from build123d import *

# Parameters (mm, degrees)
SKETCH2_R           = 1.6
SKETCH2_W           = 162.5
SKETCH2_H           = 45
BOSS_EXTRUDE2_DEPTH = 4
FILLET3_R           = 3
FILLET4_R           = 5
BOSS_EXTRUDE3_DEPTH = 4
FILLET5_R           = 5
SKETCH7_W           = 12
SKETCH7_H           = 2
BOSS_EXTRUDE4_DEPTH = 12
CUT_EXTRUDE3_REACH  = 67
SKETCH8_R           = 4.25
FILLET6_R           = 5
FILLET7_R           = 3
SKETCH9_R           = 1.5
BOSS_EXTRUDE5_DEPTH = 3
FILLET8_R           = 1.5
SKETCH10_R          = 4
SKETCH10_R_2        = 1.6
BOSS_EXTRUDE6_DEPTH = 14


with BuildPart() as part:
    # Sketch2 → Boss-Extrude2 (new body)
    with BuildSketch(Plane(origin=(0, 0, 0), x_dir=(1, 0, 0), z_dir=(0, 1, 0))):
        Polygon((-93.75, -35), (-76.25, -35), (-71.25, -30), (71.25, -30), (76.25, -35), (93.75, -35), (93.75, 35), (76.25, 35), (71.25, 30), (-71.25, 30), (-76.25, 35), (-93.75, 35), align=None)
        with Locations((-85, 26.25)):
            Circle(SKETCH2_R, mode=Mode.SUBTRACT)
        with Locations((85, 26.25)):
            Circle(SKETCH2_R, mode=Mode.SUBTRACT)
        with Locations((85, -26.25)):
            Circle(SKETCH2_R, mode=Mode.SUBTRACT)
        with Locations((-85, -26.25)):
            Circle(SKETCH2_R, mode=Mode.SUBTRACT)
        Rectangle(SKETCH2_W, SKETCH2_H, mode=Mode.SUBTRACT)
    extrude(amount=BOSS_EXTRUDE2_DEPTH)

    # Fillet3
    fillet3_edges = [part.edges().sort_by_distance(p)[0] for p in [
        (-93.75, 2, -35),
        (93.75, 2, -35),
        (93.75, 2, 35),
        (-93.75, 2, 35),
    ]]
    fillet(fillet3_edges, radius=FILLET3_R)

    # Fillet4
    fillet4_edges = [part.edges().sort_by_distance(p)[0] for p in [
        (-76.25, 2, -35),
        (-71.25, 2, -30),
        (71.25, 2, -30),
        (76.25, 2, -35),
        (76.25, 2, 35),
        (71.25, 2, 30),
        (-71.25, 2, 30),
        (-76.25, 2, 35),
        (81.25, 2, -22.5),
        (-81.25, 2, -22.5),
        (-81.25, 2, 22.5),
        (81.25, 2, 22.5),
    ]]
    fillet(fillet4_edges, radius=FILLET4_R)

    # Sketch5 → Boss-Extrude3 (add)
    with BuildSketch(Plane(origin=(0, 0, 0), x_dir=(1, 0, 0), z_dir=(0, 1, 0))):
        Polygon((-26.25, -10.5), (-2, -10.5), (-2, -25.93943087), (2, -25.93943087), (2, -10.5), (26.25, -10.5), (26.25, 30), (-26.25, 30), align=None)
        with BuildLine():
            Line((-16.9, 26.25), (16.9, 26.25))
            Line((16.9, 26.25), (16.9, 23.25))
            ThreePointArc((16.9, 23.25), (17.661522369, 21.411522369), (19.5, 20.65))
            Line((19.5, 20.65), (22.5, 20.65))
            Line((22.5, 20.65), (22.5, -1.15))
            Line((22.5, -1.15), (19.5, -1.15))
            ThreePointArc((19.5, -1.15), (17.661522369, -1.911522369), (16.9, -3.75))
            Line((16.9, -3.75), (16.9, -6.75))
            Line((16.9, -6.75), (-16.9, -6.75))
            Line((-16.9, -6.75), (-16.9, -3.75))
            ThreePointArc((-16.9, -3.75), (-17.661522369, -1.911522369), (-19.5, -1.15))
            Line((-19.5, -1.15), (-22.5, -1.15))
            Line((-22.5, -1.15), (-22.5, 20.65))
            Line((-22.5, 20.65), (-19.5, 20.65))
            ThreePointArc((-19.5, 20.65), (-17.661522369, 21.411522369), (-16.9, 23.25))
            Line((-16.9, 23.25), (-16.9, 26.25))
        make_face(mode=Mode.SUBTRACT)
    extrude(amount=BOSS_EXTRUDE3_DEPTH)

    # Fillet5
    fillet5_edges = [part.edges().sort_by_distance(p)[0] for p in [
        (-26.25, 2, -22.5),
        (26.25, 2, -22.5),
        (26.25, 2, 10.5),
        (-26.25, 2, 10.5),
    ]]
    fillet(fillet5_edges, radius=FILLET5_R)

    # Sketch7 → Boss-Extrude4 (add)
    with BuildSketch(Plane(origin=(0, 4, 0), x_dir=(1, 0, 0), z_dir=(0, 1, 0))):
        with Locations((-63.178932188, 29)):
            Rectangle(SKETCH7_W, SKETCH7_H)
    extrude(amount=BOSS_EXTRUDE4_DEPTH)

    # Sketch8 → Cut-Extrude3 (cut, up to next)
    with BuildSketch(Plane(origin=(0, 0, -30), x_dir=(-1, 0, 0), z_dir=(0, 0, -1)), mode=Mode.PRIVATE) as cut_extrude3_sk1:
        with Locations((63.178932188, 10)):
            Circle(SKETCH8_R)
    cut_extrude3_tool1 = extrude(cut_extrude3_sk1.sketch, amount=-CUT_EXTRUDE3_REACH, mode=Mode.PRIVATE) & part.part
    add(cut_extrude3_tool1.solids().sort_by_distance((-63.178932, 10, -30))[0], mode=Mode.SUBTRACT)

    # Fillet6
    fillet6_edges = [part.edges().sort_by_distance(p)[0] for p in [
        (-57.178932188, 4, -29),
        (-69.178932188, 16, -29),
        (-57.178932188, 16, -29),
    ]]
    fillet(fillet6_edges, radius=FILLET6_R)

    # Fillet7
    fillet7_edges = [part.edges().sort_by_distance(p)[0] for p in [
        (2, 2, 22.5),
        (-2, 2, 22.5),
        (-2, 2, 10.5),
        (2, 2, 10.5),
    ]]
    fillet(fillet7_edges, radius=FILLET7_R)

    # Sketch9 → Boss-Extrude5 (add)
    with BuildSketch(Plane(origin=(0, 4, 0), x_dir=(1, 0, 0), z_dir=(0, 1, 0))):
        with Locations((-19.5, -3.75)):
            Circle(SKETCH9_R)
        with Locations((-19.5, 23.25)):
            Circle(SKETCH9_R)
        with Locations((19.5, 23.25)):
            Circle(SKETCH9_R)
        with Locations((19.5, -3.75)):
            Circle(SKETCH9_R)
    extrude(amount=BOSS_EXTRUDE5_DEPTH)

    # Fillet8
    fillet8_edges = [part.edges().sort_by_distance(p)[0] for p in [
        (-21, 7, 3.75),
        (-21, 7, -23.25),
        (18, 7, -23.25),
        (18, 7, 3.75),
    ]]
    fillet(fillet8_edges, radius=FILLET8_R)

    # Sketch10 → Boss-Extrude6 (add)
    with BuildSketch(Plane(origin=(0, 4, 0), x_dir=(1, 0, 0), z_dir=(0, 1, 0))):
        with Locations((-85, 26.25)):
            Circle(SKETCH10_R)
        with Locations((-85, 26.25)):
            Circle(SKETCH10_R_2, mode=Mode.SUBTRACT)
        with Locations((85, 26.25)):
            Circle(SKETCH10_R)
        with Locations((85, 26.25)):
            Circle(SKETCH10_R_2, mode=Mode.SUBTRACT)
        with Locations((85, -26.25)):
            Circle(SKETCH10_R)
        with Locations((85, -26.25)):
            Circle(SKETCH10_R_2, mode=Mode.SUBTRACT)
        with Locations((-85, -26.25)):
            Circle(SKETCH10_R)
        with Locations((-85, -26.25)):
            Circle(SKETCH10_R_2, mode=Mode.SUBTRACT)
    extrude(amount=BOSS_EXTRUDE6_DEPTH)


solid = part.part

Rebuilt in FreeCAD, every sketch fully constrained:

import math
import FreeCAD as App
import Part
import Sketcher
Q = App.Units.Quantity


def edges_at(feature, points):
    """Names of the edges that pass closest to the given points."""
    edges = feature.Shape.Edges
    near = lambda p: min(range(len(edges)), key=lambda i: edges[i].distToShape(Part.Vertex(*p))[0])
    return sorted({f"Edge{near(p) + 1}" for p in points})


def add_polygon(sketch, points):
    """Adds a closed chain of lines whose ends are joined by coincident constraints."""
    first, n = sketch.GeometryCount, len(points)
    for a, b in zip(points, points[1:] + points[:1]):
        sketch.addGeometry(Part.LineSegment(App.Vector(*a, 0), App.Vector(*b, 0)), False)
    for i in range(n):
        sketch.addConstraint(Sketcher.Constraint("Coincident", first + i, 2, first + (i + 1) % n, 1))

doc = App.newDocument("Part")
params = doc.addObject("Spreadsheet::Sheet", "Params")
for row, (alias, value) in enumerate([
    ("sketch1_diameter", "3.2 mm"),
    ("sketch1_height", "70 mm"),
    ("sketch1_height2", "45 mm"),
    ("sketch1_width", "17.5 mm"),
    ("sketch1_width2", "142.5 mm"),
    ("pad1_length", "4 mm"),
    ("fillet_radius", "3 mm"),
    ("fillet2_radius", "5 mm"),
    ("sketch2_radius", "2.6 mm"),
    ("sketch2_width", "4 mm"),
    ("sketch2_width2", "3 mm"),
    ("sketch2_width3", "52.5 mm"),
    ("sketch2_width4", "33.8 mm"),
    ("pad2_length", "4 mm"),
    ("fillet3_radius", "5 mm"),
    ("sketch3_width", "12 mm"),
    ("sketch3_height", "2 mm"),
    ("pad3_length", "12 mm"),
    ("sketch4_diameter", "8.5 mm"),
    ("fillet4_radius", "5 mm"),
    ("fillet5_radius", "3 mm"),
    ("sketch5_diameter", "3 mm"),
    ("pad4_length", "3 mm"),
    ("fillet6_radius", "1.5 mm"),
    ("sketch6_diameter", "8 mm"),
    ("sketch6_diameter2", "3.2 mm"),
    ("pad5_length", "14 mm"),
], start=1):
    params.set(f"A{row}", alias)
    params.set(f"B{row}", "=" + value)
    params.setAlias(f"B{row}", alias)

body = doc.addObject("PartDesign::Body", "Body")

# Sketch on XZ plane
sketch1 = body.newObject("Sketcher::SketchObject", "Sketch")
sketch1.AttachmentSupport = (doc.getObject("XZ_Plane"), [""])
sketch1.MapMode = "FlatFace"
add_polygon(sketch1, [(-93.8, 35), (-76.2, 35), (-71.2, 30), (71.2, 30), (76.2, 35), (93.8, 35), (93.8, -35), (76.2, -35), (71.2, -30), (-71.2, -30), (-76.2, -35), (-93.8, -35)])  # lines 0-11
sketch1.addGeometry(Part.Circle(App.Vector(-85, 26.2, 0), App.Vector(0, 0, 1), 1.6), False)  # 12
sketch1.addGeometry(Part.Circle(App.Vector(85, 26.2, 0), App.Vector(0, 0, 1), 1.6), False)  # 13
sketch1.addGeometry(Part.Circle(App.Vector(-85, -26.2, 0), App.Vector(0, 0, 1), 1.6), False)  # 14
add_polygon(sketch1, [(81.2, 22.5), (-81.2, 22.5), (-81.2, -22.5), (81.2, -22.5)])  # lines 15-18
sketch1.addGeometry(Part.Circle(App.Vector(85, -26.2, 0), App.Vector(0, 0, 1), 1.6), False)  # 19
sketch1.addConstraint([
    Sketcher.Constraint("Horizontal", 0),
    Sketcher.Constraint("Horizontal", 2),
    Sketcher.Constraint("Horizontal", 4),
    Sketcher.Constraint("Vertical", 5),
    Sketcher.Constraint("Horizontal", 6),
    Sketcher.Constraint("Horizontal", 8),
    Sketcher.Constraint("Horizontal", 10),
    Sketcher.Constraint("Vertical", 11),
    Sketcher.Constraint("Horizontal", 15),
    Sketcher.Constraint("Vertical", 16),
    Sketcher.Constraint("Horizontal", 17),
    Sketcher.Constraint("Vertical", 18),
    Sketcher.Constraint("Equal", 12, 13),
    Sketcher.Constraint("Equal", 13, 14),
    Sketcher.Constraint("Equal", 14, 19),
    Sketcher.Constraint("Symmetric", 13, 3, 14, 3, -1, 1),
    Sketcher.Constraint("Symmetric", 12, 3, 19, 3, -1, 1),
    Sketcher.Constraint("Symmetric", 0, 2, 6, 2, -1, 1),
    Sketcher.Constraint("Symmetric", 1, 2, 7, 2, -1, 1),
    Sketcher.Constraint("Symmetric", 3, 2, 9, 2, -1, 1),
    Sketcher.Constraint("Symmetric", 15, 2, 17, 2, -1, 1),
    Sketcher.Constraint("Symmetric", 12, 3, 13, 3, -2),
    Sketcher.Constraint("Symmetric", 0, 2, 3, 2, -2),
    Sketcher.Constraint("Perpendicular", 1, 3),
    Sketcher.Constraint("Perpendicular", 7, 9),
    Sketcher.Constraint("Vertical", 2, 2, 7, 2),
    Sketcher.Constraint("Equal", 0, 4),
    Sketcher.Constraint("Diameter", 12, Q("3.2 mm")),
    Sketcher.Constraint("DistanceY", 5, 2, 5, 1, Q("70 mm")),
    Sketcher.Constraint("DistanceY", 16, 2, 16, 1, Q("45 mm")),
    Sketcher.Constraint("DistanceX", 0, 1, 0, 2, Q("17.5 mm")),
    Sketcher.Constraint("DistanceX", 2, 1, 2, 2, Q("142.5 mm")),
    Sketcher.Constraint("DistanceX", 15, 2, 15, 1, Q("162.5 mm")),
    Sketcher.Constraint("DistanceX", 12, 3, -1, 1, Q("85 mm")),
    Sketcher.Constraint("DistanceY", -1, 1, 1, 2, Q("30 mm")),
    Sketcher.Constraint("DistanceY", 14, 3, 12, 3, Q("52.5 mm")),
])
sketch1.setExpression("Constraints[43]", "Params.sketch1_diameter")
sketch1.setExpression("Constraints[44]", "Params.sketch1_height")
sketch1.setExpression("Constraints[45]", "Params.sketch1_height2")
sketch1.setExpression("Constraints[46]", "Params.sketch1_width")
sketch1.setExpression("Constraints[47]", "Params.sketch1_width2")
pad1 = body.newObject("PartDesign::Pad", "Pad")
pad1.Profile = sketch1
pad1.setExpression("Length", "Params.pad1_length")
pad1.Reversed = True
doc.recompute()

fillet = body.newObject("PartDesign::Fillet", "Fillet")
fillet.Base = (pad1, edges_at(pad1, [
    (-93.75, 2, -35),
    (93.75, 2, -35),
    (93.75, 2, 35),
    (-93.75, 2, 35),
]))
fillet.setExpression("Radius", "Params.fillet_radius")
doc.recompute()

fillet2 = body.newObject("PartDesign::Fillet", "Fillet001")
fillet2.Base = (fillet, edges_at(fillet, [
    (-76.25, 2, -35),
    (-71.25, 2, -30),
    (71.25, 2, -30),
    (76.25, 2, -35),
    (76.25, 2, 35),
    (71.25, 2, 30),
    (-71.25, 2, 30),
    (-76.25, 2, 35),
    (81.25, 2, -22.5),
    (-81.25, 2, -22.5),
    (-81.25, 2, 22.5),
    (81.25, 2, 22.5),
]))
fillet2.setExpression("Radius", "Params.fillet2_radius")

# Sketch on XZ plane
sketch2 = body.newObject("Sketcher::SketchObject", "Sketch001")
sketch2.AttachmentSupport = (doc.getObject("XZ_Plane"), [""])
sketch2.MapMode = "FlatFace"
add_polygon(sketch2, [(-26.2, 10.5), (-2, 10.5), (-2, 25.9), (2, 25.9), (2, 10.5), (26.2, 10.5), (26.2, -30), (-26.2, -30)])  # lines 0-7
sketch2.addGeometry(Part.LineSegment(App.Vector(-16.9, -23.2, 0), App.Vector(-16.9, -26.2, 0)), False)  # 8
sketch2.addGeometry(Part.LineSegment(App.Vector(-16.9, -26.2, 0), App.Vector(16.9, -26.2, 0)), False)  # 9
sketch2.addGeometry(Part.LineSegment(App.Vector(16.9, -26.2, 0), App.Vector(16.9, -23.2, 0)), False)  # 10
sketch2.addGeometry(Part.ArcOfCircle(Part.Circle(App.Vector(19.5, -23.2, 0), App.Vector(0, 0, 1), 2.6), math.radians(90), math.radians(180)), False)  # 11
sketch2.addGeometry(Part.LineSegment(App.Vector(19.5, -20.6, 0), App.Vector(22.5, -20.6, 0)), False)  # 12
sketch2.addGeometry(Part.LineSegment(App.Vector(22.5, -20.6, 0), App.Vector(22.5, 1.1, 0)), False)  # 13
sketch2.addGeometry(Part.LineSegment(App.Vector(22.5, 1.1, 0), App.Vector(19.5, 1.1, 0)), False)  # 14
sketch2.addGeometry(Part.ArcOfCircle(Part.Circle(App.Vector(19.5, 3.8, 0), App.Vector(0, 0, 1), 2.6), math.radians(180), math.radians(270)), False)  # 15
sketch2.addGeometry(Part.LineSegment(App.Vector(16.9, 3.8, 0), App.Vector(16.9, 6.8, 0)), False)  # 16
sketch2.addGeometry(Part.LineSegment(App.Vector(16.9, 6.8, 0), App.Vector(-16.9, 6.8, 0)), False)  # 17
sketch2.addGeometry(Part.LineSegment(App.Vector(-16.9, 6.8, 0), App.Vector(-16.9, 3.8, 0)), False)  # 18
sketch2.addGeometry(Part.ArcOfCircle(Part.Circle(App.Vector(-19.5, 3.8, 0), App.Vector(0, 0, 1), 2.6), math.radians(-90), math.radians(0)), False)  # 19
sketch2.addGeometry(Part.LineSegment(App.Vector(-19.5, 1.1, 0), App.Vector(-22.5, 1.1, 0)), False)  # 20
sketch2.addGeometry(Part.LineSegment(App.Vector(-22.5, 1.1, 0), App.Vector(-22.5, -20.6, 0)), False)  # 21
sketch2.addGeometry(Part.LineSegment(App.Vector(-22.5, -20.6, 0), App.Vector(-19.5, -20.6, 0)), False)  # 22
sketch2.addGeometry(Part.ArcOfCircle(Part.Circle(App.Vector(-19.5, -23.2, 0), App.Vector(0, 0, 1), 2.6), math.radians(0), math.radians(90)), False)  # 23
sketch2.addConstraint([
    Sketcher.Constraint("Coincident", 8, 2, 9, 1),
    Sketcher.Constraint("Coincident", 9, 2, 10, 1),
    Sketcher.Constraint("Tangent", 10, 2, 11, 2),
    Sketcher.Constraint("Tangent", 11, 1, 12, 1),
    Sketcher.Constraint("Coincident", 12, 2, 13, 1),
    Sketcher.Constraint("Coincident", 13, 2, 14, 1),
    Sketcher.Constraint("Tangent", 14, 2, 15, 2),
    Sketcher.Constraint("Tangent", 15, 1, 16, 1),
    Sketcher.Constraint("Coincident", 16, 2, 17, 1),
    Sketcher.Constraint("Coincident", 17, 2, 18, 1),
    Sketcher.Constraint("Tangent", 18, 2, 19, 2),
    Sketcher.Constraint("Tangent", 19, 1, 20, 1),
    Sketcher.Constraint("Coincident", 20, 2, 21, 1),
    Sketcher.Constraint("Coincident", 21, 2, 22, 1),
    Sketcher.Constraint("Tangent", 22, 2, 23, 2),
    Sketcher.Constraint("Tangent", 23, 1, 8, 1),
    Sketcher.Constraint("Horizontal", 0),
    Sketcher.Constraint("Vertical", 1),
    Sketcher.Constraint("Horizontal", 2),
    Sketcher.Constraint("Vertical", 3),
    Sketcher.Constraint("Horizontal", 4),
    Sketcher.Constraint("Vertical", 5),
    Sketcher.Constraint("Horizontal", 6),
    Sketcher.Constraint("Vertical", 7),
    Sketcher.Constraint("Vertical", 8),
    Sketcher.Constraint("Horizontal", 9),
    Sketcher.Constraint("Vertical", 10),
    Sketcher.Constraint("Horizontal", 12),
    Sketcher.Constraint("Vertical", 13),
    Sketcher.Constraint("Horizontal", 14),
    Sketcher.Constraint("Vertical", 16),
    Sketcher.Constraint("Horizontal", 17),
    Sketcher.Constraint("Vertical", 18),
    Sketcher.Constraint("Horizontal", 20),
    Sketcher.Constraint("Vertical", 21),
    Sketcher.Constraint("Horizontal", 22),
    Sketcher.Constraint("Equal", 11, 15),
    Sketcher.Constraint("Equal", 15, 19),
    Sketcher.Constraint("Equal", 19, 23),
    Sketcher.Constraint("Symmetric", 15, 3, 19, 3, -2),
    Sketcher.Constraint("Symmetric", 11, 3, 23, 3, -2),
    Sketcher.Constraint("Symmetric", 0, 2, 3, 2, -2),
    Sketcher.Constraint("Vertical", 11, 3, 15, 3),
    Sketcher.Constraint("Equal", 0, 4),
    Sketcher.Constraint("Equal", 14, 20),
    Sketcher.Constraint("Equal", 22, 8),
    Sketcher.Constraint("Equal", 10, 16),
    Sketcher.Constraint("Radius", 11, Q("2.6 mm")),
    Sketcher.Constraint("DistanceX", 2, 1, 2, 2, Q("4 mm")),
    Sketcher.Constraint("DistanceX", 12, 1, 12, 2, Q("3 mm")),
    Sketcher.Constraint("DistanceX", 6, 2, 6, 1, Q("52.5 mm")),
    Sketcher.Constraint("DistanceX", 9, 1, 9, 2, Q("33.8 mm")),
    Sketcher.Constraint("DistanceY", 5, 2, 5, 1, Q("40.5 mm")),
    Sketcher.Constraint("DistanceY", 13, 1, 13, 2, Q("21.8 mm")),
    Sketcher.Constraint("DistanceY", 5, 2, -1, 1, Q("30 mm")),
    Sketcher.Constraint("DistanceY", 11, 3, -1, 1, Q("23.25 mm")),
    Sketcher.Constraint("DistanceY", 1, 1, 1, 2, Q("15.439431 mm")),
])
sketch2.setExpression("Constraints[55]", "Params.sketch2_radius")
sketch2.setExpression("Constraints[56]", "Params.sketch2_width")
sketch2.setExpression("Constraints[57]", "Params.sketch2_width2")
sketch2.setExpression("Constraints[58]", "Params.sketch2_width3")
sketch2.setExpression("Constraints[59]", "Params.sketch2_width4")
pad2 = body.newObject("PartDesign::Pad", "Pad001")
pad2.Profile = sketch2
pad2.setExpression("Length", "Params.pad2_length")
pad2.Reversed = True
doc.recompute()

fillet3 = body.newObject("PartDesign::Fillet", "Fillet002")
fillet3.Base = (pad2, edges_at(pad2, [
    (-26.25, 2, -22.5),
    (26.25, 2, -22.5),
    (26.25, 2, 10.5),
    (-26.25, 2, 10.5),
]))
fillet3.setExpression("Radius", "Params.fillet3_radius")

# Sketch on XZ plane
sketch3 = body.newObject("Sketcher::SketchObject", "Sketch002")
sketch3.AttachmentSupport = (doc.getObject("XZ_Plane"), [""])
sketch3.MapMode = "FlatFace"
sketch3.AttachmentOffset = App.Placement(App.Vector(0, 0, -4), App.Rotation())
add_polygon(sketch3, [(-69.2, -30), (-69.2, -28), (-57.2, -28), (-57.2, -30)])  # lines 0-3
sketch3.addConstraint([
    Sketcher.Constraint("Vertical", 0),
    Sketcher.Constraint("Horizontal", 1),
    Sketcher.Constraint("Vertical", 2),
    Sketcher.Constraint("Horizontal", 3),
    Sketcher.Constraint("DistanceX", 1, 1, 1, 2, Q("12 mm")),
    Sketcher.Constraint("DistanceY", 0, 1, 0, 2, Q("2 mm")),
    Sketcher.Constraint("DistanceY", 0, 2, -1, 1, Q("28 mm")),
    Sketcher.Constraint("DistanceX", 0, 2, -1, 1, Q("69.178932 mm")),
])
sketch3.setExpression("Constraints[8]", "Params.sketch3_width")
sketch3.setExpression("Constraints[9]", "Params.sketch3_height")
pad3 = body.newObject("PartDesign::Pad", "Pad002")
pad3.Profile = sketch3
pad3.setExpression("Length", "Params.pad3_length")
pad3.Reversed = True

# Sketch on XY plane
sketch4 = body.newObject("Sketcher::SketchObject", "Sketch003")
sketch4.AttachmentSupport = (doc.getObject("XY_Plane"), [""])
sketch4.MapMode = "FlatFace"
sketch4.AttachmentOffset = App.Placement(App.Vector(0, 0, -30), App.Rotation())
sketch4.addGeometry(Part.Circle(App.Vector(-63.2, 10, 0), App.Vector(0, 0, 1), 4.2), False)
sketch4.addConstraint([
    Sketcher.Constraint("Diameter", 0, Q("8.5 mm")),
    Sketcher.Constraint("DistanceY", -1, 1, 0, 3, Q("10 mm")),
    Sketcher.Constraint("DistanceX", 0, 3, -1, 1, Q("63.178932 mm")),
])
sketch4.setExpression("Constraints[0]", "Params.sketch4_diameter")
pocket1 = body.newObject("PartDesign::Pocket", "Pocket")
pocket1.Profile = sketch4
pocket1.Type = "UpToFirst"
pocket1.Reversed = True
doc.recompute()

fillet4 = body.newObject("PartDesign::Fillet", "Fillet003")
fillet4.Base = (pocket1, edges_at(pocket1, [(-57.179, 4, -29), (-69.179, 16, -29), (-57.179, 16, -29)]))
fillet4.setExpression("Radius", "Params.fillet4_radius")
doc.recompute()

fillet5 = body.newObject("PartDesign::Fillet", "Fillet004")
fillet5.Base = (fillet4, edges_at(fillet4, [
    (2, 2, 22.5),
    (-2, 2, 22.5),
    (-2, 2, 10.5),
    (2, 2, 10.5),
]))
fillet5.setExpression("Radius", "Params.fillet5_radius")

# Sketch on XZ plane
sketch5 = body.newObject("Sketcher::SketchObject", "Sketch004")
sketch5.AttachmentSupport = (doc.getObject("XZ_Plane"), [""])
sketch5.MapMode = "FlatFace"
sketch5.AttachmentOffset = App.Placement(App.Vector(0, 0, -4), App.Rotation())
sketch5.addGeometry([
    Part.Circle(App.Vector(-19.5, 3.8, 0), App.Vector(0, 0, 1), 1.5),
    Part.Circle(App.Vector(-19.5, -23.2, 0), App.Vector(0, 0, 1), 1.5),
    Part.Circle(App.Vector(19.5, -23.2, 0), App.Vector(0, 0, 1), 1.5),
    Part.Circle(App.Vector(19.5, 3.8, 0), App.Vector(0, 0, 1), 1.5),
], False)
sketch5.addConstraint([
    Sketcher.Constraint("Equal", 0, 1),
    Sketcher.Constraint("Equal", 1, 2),
    Sketcher.Constraint("Equal", 2, 3),
    Sketcher.Constraint("Symmetric", 1, 3, 2, 3, -2),
    Sketcher.Constraint("Symmetric", 0, 3, 3, 3, -2),
    Sketcher.Constraint("Vertical", 0, 3, 1, 3),
    Sketcher.Constraint("Diameter", 0, Q("3 mm")),
    Sketcher.Constraint("DistanceY", 1, 3, 0, 3, Q("27 mm")),
    Sketcher.Constraint("DistanceX", 1, 3, 2, 3, Q("39 mm")),
    Sketcher.Constraint("DistanceY", -1, 1, 0, 3, Q("3.75 mm")),
])
sketch5.setExpression("Constraints[6]", "Params.sketch5_diameter")
pad4 = body.newObject("PartDesign::Pad", "Pad003")
pad4.Profile = sketch5
pad4.setExpression("Length", "Params.pad4_length")
pad4.Reversed = True
doc.recompute()

fillet6 = body.newObject("PartDesign::Fillet", "Fillet005")
fillet6.Base = (pad4, edges_at(pad4, [
    (-21, 7, 3.75),
    (-21, 7, -23.25),
    (18, 7, -23.25),
    (18, 7, 3.75),
]))
fillet6.setExpression("Radius", "Params.fillet6_radius")

# Sketch on XZ plane
sketch6 = body.newObject("Sketcher::SketchObject", "Sketch005")
sketch6.AttachmentSupport = (doc.getObject("XZ_Plane"), [""])
sketch6.MapMode = "FlatFace"
sketch6.AttachmentOffset = App.Placement(App.Vector(0, 0, -4), App.Rotation())
sketch6.addGeometry([
    Part.Circle(App.Vector(-85, -26.2, 0), App.Vector(0, 0, 1), 4),  # 0
    Part.Circle(App.Vector(-85, -26.2, 0), App.Vector(0, 0, 1), 1.6),  # 1
    Part.Circle(App.Vector(85, -26.2, 0), App.Vector(0, 0, 1), 4),  # 2
    Part.Circle(App.Vector(85, -26.2, 0), App.Vector(0, 0, 1), 1.6),  # 3
    Part.Circle(App.Vector(85, 26.2, 0), App.Vector(0, 0, 1), 4),  # 4
    Part.Circle(App.Vector(85, 26.2, 0), App.Vector(0, 0, 1), 1.6),  # 5
    Part.Circle(App.Vector(-85, 26.2, 0), App.Vector(0, 0, 1), 4),  # 6
    Part.Circle(App.Vector(-85, 26.2, 0), App.Vector(0, 0, 1), 1.6),  # 7
], False)
sketch6.addConstraint([
    Sketcher.Constraint("Coincident", 1, 3, 0, 3),
    Sketcher.Constraint("Coincident", 3, 3, 2, 3),
    Sketcher.Constraint("Coincident", 5, 3, 4, 3),
    Sketcher.Constraint("Coincident", 7, 3, 6, 3),
    Sketcher.Constraint("Equal", 0, 2),
    Sketcher.Constraint("Equal", 1, 3),
    Sketcher.Constraint("Equal", 2, 4),
    Sketcher.Constraint("Equal", 3, 5),
    Sketcher.Constraint("Equal", 4, 6),
    Sketcher.Constraint("Equal", 5, 7),
    Sketcher.Constraint("Symmetric", 0, 3, 4, 3, -1, 1),
    Sketcher.Constraint("Symmetric", 2, 3, 6, 3, -1, 1),
    Sketcher.Constraint("Symmetric", 0, 3, 2, 3, -2),
    Sketcher.Constraint("Diameter", 0, Q("8 mm")),
    Sketcher.Constraint("Diameter", 1, Q("3.2 mm")),
    Sketcher.Constraint("DistanceX", 0, 3, -1, 1, Q("85 mm")),
    Sketcher.Constraint("DistanceY", 2, 3, 4, 3, Q("52.5 mm")),
])
sketch6.setExpression("Constraints[13]", "Params.sketch6_diameter")
sketch6.setExpression("Constraints[14]", "Params.sketch6_diameter2")
pad5 = body.newObject("PartDesign::Pad", "Pad004")
pad5.Profile = sketch6
pad5.setExpression("Length", "Params.pad5_length")
pad5.Reversed = True

doc.recompute()
